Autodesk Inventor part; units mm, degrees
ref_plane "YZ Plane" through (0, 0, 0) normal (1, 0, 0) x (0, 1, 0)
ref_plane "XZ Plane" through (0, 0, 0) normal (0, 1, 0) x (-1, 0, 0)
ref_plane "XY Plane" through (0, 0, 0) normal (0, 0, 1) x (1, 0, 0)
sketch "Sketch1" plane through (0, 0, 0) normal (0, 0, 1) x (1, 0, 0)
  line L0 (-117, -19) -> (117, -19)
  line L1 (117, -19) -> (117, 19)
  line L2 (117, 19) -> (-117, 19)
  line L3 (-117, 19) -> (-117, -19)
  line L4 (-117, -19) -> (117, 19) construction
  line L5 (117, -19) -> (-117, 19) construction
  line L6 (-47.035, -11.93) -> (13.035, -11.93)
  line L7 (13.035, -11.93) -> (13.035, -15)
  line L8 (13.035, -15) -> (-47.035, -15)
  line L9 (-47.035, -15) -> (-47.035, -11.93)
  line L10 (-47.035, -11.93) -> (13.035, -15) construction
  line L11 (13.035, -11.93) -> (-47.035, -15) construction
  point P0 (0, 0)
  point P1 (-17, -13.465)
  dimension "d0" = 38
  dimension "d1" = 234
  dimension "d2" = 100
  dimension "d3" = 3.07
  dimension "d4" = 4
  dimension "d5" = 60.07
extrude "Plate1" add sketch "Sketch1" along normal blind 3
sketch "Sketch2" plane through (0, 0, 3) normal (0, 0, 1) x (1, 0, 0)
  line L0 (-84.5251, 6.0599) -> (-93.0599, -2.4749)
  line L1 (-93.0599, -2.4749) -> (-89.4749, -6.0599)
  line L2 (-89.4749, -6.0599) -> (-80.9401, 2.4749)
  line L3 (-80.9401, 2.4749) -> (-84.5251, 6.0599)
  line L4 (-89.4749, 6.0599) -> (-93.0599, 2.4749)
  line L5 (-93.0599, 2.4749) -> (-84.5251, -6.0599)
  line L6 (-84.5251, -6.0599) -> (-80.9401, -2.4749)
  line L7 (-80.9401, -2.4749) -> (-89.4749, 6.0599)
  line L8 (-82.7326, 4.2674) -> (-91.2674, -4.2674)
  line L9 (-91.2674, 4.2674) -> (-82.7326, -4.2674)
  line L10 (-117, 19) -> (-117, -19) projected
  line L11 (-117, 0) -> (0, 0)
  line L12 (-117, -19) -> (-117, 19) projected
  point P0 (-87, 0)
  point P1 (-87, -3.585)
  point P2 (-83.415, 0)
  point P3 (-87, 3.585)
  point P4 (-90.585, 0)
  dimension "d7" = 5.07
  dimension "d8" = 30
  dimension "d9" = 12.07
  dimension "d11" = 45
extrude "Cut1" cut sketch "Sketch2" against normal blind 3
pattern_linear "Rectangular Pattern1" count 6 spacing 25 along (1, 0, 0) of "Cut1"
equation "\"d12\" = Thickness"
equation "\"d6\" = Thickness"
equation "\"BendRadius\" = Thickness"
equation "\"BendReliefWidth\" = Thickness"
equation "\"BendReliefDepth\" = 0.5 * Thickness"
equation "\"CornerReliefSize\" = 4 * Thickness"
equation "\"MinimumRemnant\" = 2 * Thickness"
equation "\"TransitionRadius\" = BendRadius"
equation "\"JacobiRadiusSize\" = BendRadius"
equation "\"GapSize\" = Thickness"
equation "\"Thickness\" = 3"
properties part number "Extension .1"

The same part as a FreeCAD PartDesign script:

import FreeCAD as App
import Part
import Sketcher
from FreeCAD import Vector


def add_polygon(sketch, points):
    """Adds a closed chain of lines whose ends are joined by coincident constraints."""
    first, n = sketch.GeometryCount, len(points)
    for a, b in zip(points, points[1:] + points[:1]):
        sketch.addGeometry(Part.LineSegment(App.Vector(*a, 0), App.Vector(*b, 0)), False)
    for i in range(n):
        sketch.addConstraint(Sketcher.Constraint("Coincident", first + i, 2, first + (i + 1) % n, 1))

doc = App.newDocument("Part")
body = doc.addObject("PartDesign::Body", "Body")

sketch1 = doc.addObject("Sketcher::SketchObject", "Sketch")
body.addObject(sketch1)
sketch1.AttachmentSupport = (doc.XY_Plane, [""])
sketch1.MapMode = "FlatFace"
add_polygon(sketch1, [(-117, 19), (-117, -19), (117, -19), (117, 19)])
add_polygon(sketch1, [(-47.035, -15), (-47.035, -11.93), (13.035, -11.93), (13.035, -15)])
sketch1.addConstraint([
    Sketcher.Constraint("Vertical", 0),
    Sketcher.Constraint("Horizontal", 1),
    Sketcher.Constraint("Vertical", 2),
    Sketcher.Constraint("Horizontal", 3),
    Sketcher.Constraint("Vertical", 4),
    Sketcher.Constraint("Horizontal", 5),
    Sketcher.Constraint("Vertical", 6),
    Sketcher.Constraint("Horizontal", 7),
    Sketcher.Constraint("Symmetric", 0, 2, 2, 2, -1, 1),
    Sketcher.Constraint("DistanceX", 1, 1, 1, 2, 234.0),
    Sketcher.Constraint("DistanceY", 0, 2, 0, 1, 38.0),
    Sketcher.Constraint("DistanceY", 1, 2, 6, 2, 4.0),
    Sketcher.Constraint("DistanceX", 5, 1, 5, 2, 60.07),
    Sketcher.Constraint("DistanceY", 4, 1, 4, 2, 3.07),
    Sketcher.Constraint("DistanceX", 4, 2, -1, 1, 47.035),
])
pad1 = doc.addObject("PartDesign::Pad", "Pad")
body.addObject(pad1)
pad1.Profile = sketch1
pad1.Length = 3

sketch2 = doc.addObject("Sketcher::SketchObject", "Sketch001")
body.addObject(sketch2)
sketch2.AttachmentSupport = (doc.XY_Plane, [""])
sketch2.MapMode = "FlatFace"
sketch2.AttachmentOffset = App.Placement(Vector(0, 0, 3), App.Rotation())
add_polygon(sketch2, [(-84.5251, 6.0599), (-87, 3.585), (-89.4749, 6.0599), (-93.0599, 2.4749), (-90.585, 0), (-93.0599, -2.4749), (-89.4749, -6.0599), (-87, -3.585), (-84.5251, -6.0599), (-80.9401, -2.4749), (-83.415, 0), (-80.9401, 2.4749)])
sketch2.addConstraint([
    Sketcher.Constraint("Symmetric", 2, 2, 4, 2, -1),
    Sketcher.Constraint("Symmetric", 1, 2, 5, 2, -1),
    Sketcher.Constraint("Symmetric", 0, 2, 6, 2, -1),
    Sketcher.Constraint("Symmetric", 8, 2, 10, 2, -1),
    Sketcher.Constraint("Symmetric", 7, 2, 11, 2, -1),
    Sketcher.Constraint("PointOnObject", 3, 2, -1),
    Sketcher.Constraint("PointOnObject", 9, 2, -1),
    Sketcher.Constraint("Perpendicular", 0, 1),
    Sketcher.Constraint("Perpendicular", 1, 2),
    Sketcher.Constraint("Perpendicular", 2, 3),
    Sketcher.Constraint("Perpendicular", 3, 4),
    Sketcher.Constraint("Perpendicular", 7, 8),
    Sketcher.Constraint("Perpendicular", 8, 9),
    Sketcher.Constraint("Horizontal", 5, 2, 7, 2),
    Sketcher.Constraint("Horizontal", 4, 2, 8, 2),
    Sketcher.Constraint("Equal", 1, 3),
    Sketcher.Constraint("Distance", 2, 5.07),
    Sketcher.Constraint("DistanceX", 0, 2, -1, 1, 87.0),
    Sketcher.Constraint("Distance", 0, 3.5),
])
pocket1 = doc.addObject("PartDesign::Pocket", "Pocket")
body.addObject(pocket1)
pocket1.Profile = sketch2
pocket1.Length = 3
doc.recompute()

linearpattern = doc.addObject("PartDesign::LinearPattern", "LinearPattern")
body.addObject(linearpattern)
linearpattern.Originals = [pocket1]
linearpattern.Direction = (doc.X_Axis, [""])
linearpattern.Mode = "offset"
linearpattern.Offset = 25
linearpattern.Occurrences = 6
body.Tip = linearpattern

doc.recompute()
